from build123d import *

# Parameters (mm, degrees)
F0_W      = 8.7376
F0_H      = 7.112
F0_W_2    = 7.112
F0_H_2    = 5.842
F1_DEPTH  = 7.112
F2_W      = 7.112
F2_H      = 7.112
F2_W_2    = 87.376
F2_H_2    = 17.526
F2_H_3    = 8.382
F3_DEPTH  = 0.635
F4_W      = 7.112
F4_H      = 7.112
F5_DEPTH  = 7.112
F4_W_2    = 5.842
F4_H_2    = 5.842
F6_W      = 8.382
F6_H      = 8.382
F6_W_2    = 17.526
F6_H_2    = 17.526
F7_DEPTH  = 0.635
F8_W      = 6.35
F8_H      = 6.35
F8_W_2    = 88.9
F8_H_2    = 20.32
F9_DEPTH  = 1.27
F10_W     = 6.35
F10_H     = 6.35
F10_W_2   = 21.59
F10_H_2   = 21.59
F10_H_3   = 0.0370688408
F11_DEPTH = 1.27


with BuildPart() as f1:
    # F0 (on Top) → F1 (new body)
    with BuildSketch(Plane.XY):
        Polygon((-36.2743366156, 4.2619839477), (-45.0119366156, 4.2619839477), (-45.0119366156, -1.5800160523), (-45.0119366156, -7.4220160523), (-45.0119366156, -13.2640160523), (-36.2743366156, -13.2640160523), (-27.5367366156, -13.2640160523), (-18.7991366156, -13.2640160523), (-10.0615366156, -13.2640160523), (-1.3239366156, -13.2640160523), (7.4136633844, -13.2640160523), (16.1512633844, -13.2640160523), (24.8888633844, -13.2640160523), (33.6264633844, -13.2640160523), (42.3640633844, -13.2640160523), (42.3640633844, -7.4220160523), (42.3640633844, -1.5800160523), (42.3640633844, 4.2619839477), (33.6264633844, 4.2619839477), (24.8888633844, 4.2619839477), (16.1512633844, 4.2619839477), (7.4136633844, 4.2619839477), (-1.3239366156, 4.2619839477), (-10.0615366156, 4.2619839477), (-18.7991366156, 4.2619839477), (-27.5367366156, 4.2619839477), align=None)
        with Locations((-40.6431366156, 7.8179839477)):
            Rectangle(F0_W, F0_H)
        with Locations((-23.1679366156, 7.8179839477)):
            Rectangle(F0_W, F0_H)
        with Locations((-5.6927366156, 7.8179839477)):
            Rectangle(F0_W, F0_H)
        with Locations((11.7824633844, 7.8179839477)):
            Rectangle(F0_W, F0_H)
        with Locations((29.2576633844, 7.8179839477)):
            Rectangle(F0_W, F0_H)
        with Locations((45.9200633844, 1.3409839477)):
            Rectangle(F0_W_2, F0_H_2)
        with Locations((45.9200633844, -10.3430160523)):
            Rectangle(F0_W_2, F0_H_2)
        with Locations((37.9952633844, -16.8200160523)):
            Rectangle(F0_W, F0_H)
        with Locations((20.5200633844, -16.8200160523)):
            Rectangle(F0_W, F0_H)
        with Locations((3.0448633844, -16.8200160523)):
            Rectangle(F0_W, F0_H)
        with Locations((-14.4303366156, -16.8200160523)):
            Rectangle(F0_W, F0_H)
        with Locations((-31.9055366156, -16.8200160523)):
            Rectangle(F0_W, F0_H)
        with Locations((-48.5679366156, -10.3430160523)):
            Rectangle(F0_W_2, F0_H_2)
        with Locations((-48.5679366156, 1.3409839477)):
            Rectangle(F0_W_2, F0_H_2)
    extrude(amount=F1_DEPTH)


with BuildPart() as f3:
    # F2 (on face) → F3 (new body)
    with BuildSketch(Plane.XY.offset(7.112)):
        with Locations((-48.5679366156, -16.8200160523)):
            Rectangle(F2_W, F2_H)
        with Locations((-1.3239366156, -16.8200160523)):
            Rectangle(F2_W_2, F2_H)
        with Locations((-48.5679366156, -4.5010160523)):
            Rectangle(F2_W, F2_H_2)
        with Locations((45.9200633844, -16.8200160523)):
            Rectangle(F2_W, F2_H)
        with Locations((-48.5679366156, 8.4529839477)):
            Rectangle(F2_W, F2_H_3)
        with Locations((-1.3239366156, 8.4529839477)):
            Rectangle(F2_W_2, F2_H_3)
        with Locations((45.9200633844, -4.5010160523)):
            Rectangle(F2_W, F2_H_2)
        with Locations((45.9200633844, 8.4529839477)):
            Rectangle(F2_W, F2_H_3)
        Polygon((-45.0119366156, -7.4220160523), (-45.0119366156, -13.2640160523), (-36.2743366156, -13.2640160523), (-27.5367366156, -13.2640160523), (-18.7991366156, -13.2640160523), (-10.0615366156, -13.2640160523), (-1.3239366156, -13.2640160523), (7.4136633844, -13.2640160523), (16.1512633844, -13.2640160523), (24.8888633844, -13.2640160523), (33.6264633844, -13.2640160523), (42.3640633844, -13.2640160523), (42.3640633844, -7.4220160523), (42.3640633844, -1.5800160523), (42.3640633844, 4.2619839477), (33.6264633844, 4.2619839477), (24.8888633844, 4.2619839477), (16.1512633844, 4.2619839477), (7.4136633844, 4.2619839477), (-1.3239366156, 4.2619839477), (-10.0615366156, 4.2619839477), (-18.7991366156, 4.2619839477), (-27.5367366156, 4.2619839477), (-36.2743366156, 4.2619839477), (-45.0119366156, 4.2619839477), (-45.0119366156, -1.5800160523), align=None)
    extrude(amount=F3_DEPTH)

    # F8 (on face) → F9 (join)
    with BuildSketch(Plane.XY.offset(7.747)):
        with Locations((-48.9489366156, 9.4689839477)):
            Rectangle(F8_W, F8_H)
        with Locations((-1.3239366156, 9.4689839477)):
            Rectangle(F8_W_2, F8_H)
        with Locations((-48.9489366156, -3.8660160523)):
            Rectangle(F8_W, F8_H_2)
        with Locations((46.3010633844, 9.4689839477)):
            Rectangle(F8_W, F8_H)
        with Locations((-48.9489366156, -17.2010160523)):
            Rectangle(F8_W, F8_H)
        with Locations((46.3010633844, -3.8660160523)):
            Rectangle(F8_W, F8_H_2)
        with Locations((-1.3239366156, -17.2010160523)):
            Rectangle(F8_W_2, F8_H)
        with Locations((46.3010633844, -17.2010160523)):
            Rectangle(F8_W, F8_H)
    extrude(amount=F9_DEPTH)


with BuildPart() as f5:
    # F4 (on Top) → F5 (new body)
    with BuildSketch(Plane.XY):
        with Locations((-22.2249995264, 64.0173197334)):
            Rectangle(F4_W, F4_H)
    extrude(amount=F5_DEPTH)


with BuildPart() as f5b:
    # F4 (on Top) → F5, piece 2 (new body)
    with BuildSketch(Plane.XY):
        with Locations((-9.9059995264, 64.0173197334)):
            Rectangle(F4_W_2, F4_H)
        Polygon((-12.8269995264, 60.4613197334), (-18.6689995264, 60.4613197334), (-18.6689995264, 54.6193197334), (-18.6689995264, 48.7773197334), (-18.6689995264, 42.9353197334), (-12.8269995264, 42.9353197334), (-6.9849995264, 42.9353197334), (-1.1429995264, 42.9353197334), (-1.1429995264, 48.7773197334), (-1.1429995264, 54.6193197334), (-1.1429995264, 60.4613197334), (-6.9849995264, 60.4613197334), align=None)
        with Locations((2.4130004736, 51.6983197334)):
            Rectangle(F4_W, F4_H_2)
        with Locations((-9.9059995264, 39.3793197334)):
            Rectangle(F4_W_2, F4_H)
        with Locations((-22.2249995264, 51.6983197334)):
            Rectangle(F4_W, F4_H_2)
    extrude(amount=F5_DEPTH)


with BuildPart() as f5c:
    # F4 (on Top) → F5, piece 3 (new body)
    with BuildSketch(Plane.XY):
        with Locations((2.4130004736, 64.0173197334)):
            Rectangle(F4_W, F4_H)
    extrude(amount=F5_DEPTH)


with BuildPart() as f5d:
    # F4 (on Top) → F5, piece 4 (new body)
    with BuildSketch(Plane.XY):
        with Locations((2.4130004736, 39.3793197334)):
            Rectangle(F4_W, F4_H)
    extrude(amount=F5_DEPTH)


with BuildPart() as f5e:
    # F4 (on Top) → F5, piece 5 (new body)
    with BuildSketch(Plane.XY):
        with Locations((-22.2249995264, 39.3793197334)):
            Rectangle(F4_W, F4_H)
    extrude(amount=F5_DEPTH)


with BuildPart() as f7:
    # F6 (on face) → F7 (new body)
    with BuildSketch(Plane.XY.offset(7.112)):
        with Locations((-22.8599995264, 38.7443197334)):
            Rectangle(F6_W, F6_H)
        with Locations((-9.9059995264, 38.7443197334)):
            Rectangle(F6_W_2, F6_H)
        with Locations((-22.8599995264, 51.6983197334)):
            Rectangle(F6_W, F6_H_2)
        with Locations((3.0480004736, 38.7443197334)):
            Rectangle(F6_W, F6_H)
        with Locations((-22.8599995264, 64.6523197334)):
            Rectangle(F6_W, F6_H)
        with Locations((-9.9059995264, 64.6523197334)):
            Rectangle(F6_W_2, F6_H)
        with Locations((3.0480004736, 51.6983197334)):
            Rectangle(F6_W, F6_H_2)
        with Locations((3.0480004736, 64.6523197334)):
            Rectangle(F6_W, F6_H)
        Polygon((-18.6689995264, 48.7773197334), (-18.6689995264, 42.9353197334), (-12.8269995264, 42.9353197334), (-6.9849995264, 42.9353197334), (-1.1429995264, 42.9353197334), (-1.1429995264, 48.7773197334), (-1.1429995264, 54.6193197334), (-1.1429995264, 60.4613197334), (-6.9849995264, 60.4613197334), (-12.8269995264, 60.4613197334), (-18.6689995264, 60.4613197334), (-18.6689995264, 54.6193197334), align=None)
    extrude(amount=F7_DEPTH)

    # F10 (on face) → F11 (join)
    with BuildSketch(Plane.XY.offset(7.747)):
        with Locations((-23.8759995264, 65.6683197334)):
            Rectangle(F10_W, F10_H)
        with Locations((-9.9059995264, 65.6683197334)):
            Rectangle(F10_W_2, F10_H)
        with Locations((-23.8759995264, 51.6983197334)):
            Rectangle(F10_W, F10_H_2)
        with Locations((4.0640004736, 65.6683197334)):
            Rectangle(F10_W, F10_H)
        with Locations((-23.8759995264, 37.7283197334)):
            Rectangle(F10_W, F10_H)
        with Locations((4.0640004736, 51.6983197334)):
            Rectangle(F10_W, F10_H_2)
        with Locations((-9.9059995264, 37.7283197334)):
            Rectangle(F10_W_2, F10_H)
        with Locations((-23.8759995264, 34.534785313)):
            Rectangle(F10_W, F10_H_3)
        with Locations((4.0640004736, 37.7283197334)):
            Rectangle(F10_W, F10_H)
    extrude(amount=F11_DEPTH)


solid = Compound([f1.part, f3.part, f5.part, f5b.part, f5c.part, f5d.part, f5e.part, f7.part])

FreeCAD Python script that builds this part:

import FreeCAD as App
import Part
import Sketcher
from FreeCAD import Vector
Q = App.Units.Quantity

doc = App.newDocument("Part")
body = doc.addObject("PartDesign::Body", "Body")

# Sketch on XY plane
sketch1 = doc.addObject("Sketcher::SketchObject", "Sketch")
body.addObject(sketch1)
sketch1.AttachmentSupport = (doc.XY_Plane, [""])
sketch1.MapMode = "FlatFace"
sketch1.addGeometry(Part.LineSegment(Vector(-36, -13, 0), Vector(-36, -20, 0)), False)
sketch1.addGeometry(Part.LineSegment(Vector(-36, -20, 0), Vector(-28, -20, 0)), False)
sketch1.addGeometry(Part.LineSegment(Vector(-28, -20, 0), Vector(-28, -13, 0)), False)
sketch1.addGeometry(Part.LineSegment(Vector(-28, -13, 0), Vector(-19, -13, 0)), False)
sketch1.addGeometry(Part.LineSegment(Vector(-19, -13, 0), Vector(-19, -20, 0)), False)
sketch1.addGeometry(Part.LineSegment(Vector(-19, -20, 0), Vector(-10, -20, 0)), False)
sketch1.addGeometry(Part.LineSegment(Vector(-10, -20, 0), Vector(-10, -13, 0)), False)
sketch1.addGeometry(Part.LineSegment(Vector(-10, -13, 0), Vector(-1, -13, 0)), False)
sketch1.addGeometry(Part.LineSegment(Vector(-1, -13, 0), Vector(-1, -20, 0)), False)
sketch1.addGeometry(Part.LineSegment(Vector(-1, -20, 0), Vector(7, -20, 0)), False)
sketch1.addGeometry(Part.LineSegment(Vector(7, -20, 0), Vector(7, -13, 0)), False)
sketch1.addGeometry(Part.LineSegment(Vector(7, -13, 0), Vector(16, -13, 0)), False)
sketch1.addGeometry(Part.LineSegment(Vector(16, -13, 0), Vector(16, -20, 0)), False)
sketch1.addGeometry(Part.LineSegment(Vector(16, -20, 0), Vector(25, -20, 0)), False)
sketch1.addGeometry(Part.LineSegment(Vector(25, -20, 0), Vector(25, -13, 0)), False)
sketch1.addGeometry(Part.LineSegment(Vector(25, -13, 0), Vector(34, -13, 0)), False)
sketch1.addGeometry(Part.LineSegment(Vector(34, -13, 0), Vector(34, -20, 0)), False)
sketch1.addGeometry(Part.LineSegment(Vector(34, -20, 0), Vector(42, -20, 0)), False)
sketch1.addGeometry(Part.LineSegment(Vector(42, -20, 0), Vector(42, -13, 0)), False)
sketch1.addGeometry(Part.LineSegment(Vector(42, -13, 0), Vector(49, -13, 0)), False)
sketch1.addGeometry(Part.LineSegment(Vector(49, -13, 0), Vector(49, -7, 0)), False)
sketch1.addGeometry(Part.LineSegment(Vector(49, -7, 0), Vector(42, -7, 0)), False)
sketch1.addGeometry(Part.LineSegment(Vector(42, -7, 0), Vector(42, -2, 0)), False)
sketch1.addGeometry(Part.LineSegment(Vector(42, -2, 0), Vector(49, -2, 0)), False)
sketch1.addGeometry(Part.LineSegment(Vector(49, -2, 0), Vector(49, 4, 0)), False)
sketch1.addGeometry(Part.LineSegment(Vector(49, 4, 0), Vector(34, 4, 0)), False)
sketch1.addGeometry(Part.LineSegment(Vector(34, 4, 0), Vector(34, 11, 0)), False)
sketch1.addGeometry(Part.LineSegment(Vector(34, 11, 0), Vector(25, 11, 0)), False)
sketch1.addGeometry(Part.LineSegment(Vector(25, 11, 0), Vector(25, 4, 0)), False)
sketch1.addGeometry(Part.LineSegment(Vector(25, 4, 0), Vector(16, 4, 0)), False)
sketch1.addGeometry(Part.LineSegment(Vector(16, 4, 0), Vector(16, 11, 0)), False)
sketch1.addGeometry(Part.LineSegment(Vector(16, 11, 0), Vector(7, 11, 0)), False)
sketch1.addGeometry(Part.LineSegment(Vector(7, 11, 0), Vector(7, 4, 0)), False)
sketch1.addGeometry(Part.LineSegment(Vector(7, 4, 0), Vector(-1, 4, 0)), False)
sketch1.addGeometry(Part.LineSegment(Vector(-1, 4, 0), Vector(-1, 11, 0)), False)
sketch1.addGeometry(Part.LineSegment(Vector(-1, 11, 0), Vector(-10, 11, 0)), False)
sketch1.addGeometry(Part.LineSegment(Vector(-10, 11, 0), Vector(-10, 4, 0)), False)
sketch1.addGeometry(Part.LineSegment(Vector(-10, 4, 0), Vector(-19, 4, 0)), False)
sketch1.addGeometry(Part.LineSegment(Vector(-19, 4, 0), Vector(-19, 11, 0)), False)
sketch1.addGeometry(Part.LineSegment(Vector(-19, 11, 0), Vector(-28, 11, 0)), False)
sketch1.addGeometry(Part.LineSegment(Vector(-28, 11, 0), Vector(-28, 4, 0)), False)
sketch1.addGeometry(Part.LineSegment(Vector(-28, 4, 0), Vector(-36, 4, 0)), False)
sketch1.addGeometry(Part.LineSegment(Vector(-36, 4, 0), Vector(-36, 11, 0)), False)
sketch1.addGeometry(Part.LineSegment(Vector(-36, 11, 0), Vector(-45, 11, 0)), False)
sketch1.addGeometry(Part.LineSegment(Vector(-45, 11, 0), Vector(-45, 4, 0)), False)
sketch1.addGeometry(Part.LineSegment(Vector(-45, 4, 0), Vector(-52, 4, 0)), False)
sketch1.addGeometry(Part.LineSegment(Vector(-52, 4, 0), Vector(-52, -2, 0)), False)
sketch1.addGeometry(Part.LineSegment(Vector(-52, -2, 0), Vector(-45, -2, 0)), False)
sketch1.addGeometry(Part.LineSegment(Vector(-45, -2, 0), Vector(-45, -7, 0)), False)
sketch1.addGeometry(Part.LineSegment(Vector(-45, -7, 0), Vector(-52, -7, 0)), False)
sketch1.addGeometry(Part.LineSegment(Vector(-52, -7, 0), Vector(-52, -13, 0)), False)
sketch1.addGeometry(Part.LineSegment(Vector(-52, -13, 0), Vector(-36, -13, 0)), False)
sketch1.addConstraint(Sketcher.Constraint("Coincident", 0, 2, 1, 1))
sketch1.addConstraint(Sketcher.Constraint("Coincident", 1, 2, 2, 1))
sketch1.addConstraint(Sketcher.Constraint("Coincident", 2, 2, 3, 1))
sketch1.addConstraint(Sketcher.Constraint("Coincident", 3, 2, 4, 1))
sketch1.addConstraint(Sketcher.Constraint("Coincident", 4, 2, 5, 1))
sketch1.addConstraint(Sketcher.Constraint("Coincident", 5, 2, 6, 1))
sketch1.addConstraint(Sketcher.Constraint("Coincident", 6, 2, 7, 1))
sketch1.addConstraint(Sketcher.Constraint("Coincident", 7, 2, 8, 1))
sketch1.addConstraint(Sketcher.Constraint("Coincident", 8, 2, 9, 1))
sketch1.addConstraint(Sketcher.Constraint("Coincident", 9, 2, 10, 1))
sketch1.addConstraint(Sketcher.Constraint("Coincident", 10, 2, 11, 1))
sketch1.addConstraint(Sketcher.Constraint("Coincident", 11, 2, 12, 1))
sketch1.addConstraint(Sketcher.Constraint("Coincident", 12, 2, 13, 1))
sketch1.addConstraint(Sketcher.Constraint("Coincident", 13, 2, 14, 1))
sketch1.addConstraint(Sketcher.Constraint("Coincident", 14, 2, 15, 1))
sketch1.addConstraint(Sketcher.Constraint("Coincident", 15, 2, 16, 1))
sketch1.addConstraint(Sketcher.Constraint("Coincident", 16, 2, 17, 1))
sketch1.addConstraint(Sketcher.Constraint("Coincident", 17, 2, 18, 1))
sketch1.addConstraint(Sketcher.Constraint("Coincident", 18, 2, 19, 1))
sketch1.addConstraint(Sketcher.Constraint("Coincident", 19, 2, 20, 1))
sketch1.addConstraint(Sketcher.Constraint("Coincident", 20, 2, 21, 1))
sketch1.addConstraint(Sketcher.Constraint("Coincident", 21, 2, 22, 1))
sketch1.addConstraint(Sketcher.Constraint("Coincident", 22, 2, 23, 1))
sketch1.addConstraint(Sketcher.Constraint("Coincident", 23, 2, 24, 1))
sketch1.addConstraint(Sketcher.Constraint("Coincident", 24, 2, 25, 1))
sketch1.addConstraint(Sketcher.Constraint("Coincident", 25, 2, 26, 1))
sketch1.addConstraint(Sketcher.Constraint("Coincident", 26, 2, 27, 1))
sketch1.addConstraint(Sketcher.Constraint("Coincident", 27, 2, 28, 1))
sketch1.addConstraint(Sketcher.Constraint("Coincident", 28, 2, 29, 1))
sketch1.addConstraint(Sketcher.Constraint("Coincident", 29, 2, 30, 1))
sketch1.addConstraint(Sketcher.Constraint("Coincident", 30, 2, 31, 1))
sketch1.addConstraint(Sketcher.Constraint("Coincident", 31, 2, 32, 1))
sketch1.addConstraint(Sketcher.Constraint("Coincident", 32, 2, 33, 1))
sketch1.addConstraint(Sketcher.Constraint("Coincident", 33, 2, 34, 1))
sketch1.addConstraint(Sketcher.Constraint("Coincident", 34, 2, 35, 1))
sketch1.addConstraint(Sketcher.Constraint("Coincident", 35, 2, 36, 1))
sketch1.addConstraint(Sketcher.Constraint("Coincident", 36, 2, 37, 1))
sketch1.addConstraint(Sketcher.Constraint("Coincident", 37, 2, 38, 1))
sketch1.addConstraint(Sketcher.Constraint("Coincident", 38, 2, 39, 1))
sketch1.addConstraint(Sketcher.Constraint("Coincident", 39, 2, 40, 1))
sketch1.addConstraint(Sketcher.Constraint("Coincident", 40, 2, 41, 1))
sketch1.addConstraint(Sketcher.Constraint("Coincident", 41, 2, 42, 1))
sketch1.addConstraint(Sketcher.Constraint("Coincident", 42, 2, 43, 1))
sketch1.addConstraint(Sketcher.Constraint("Coincident", 43, 2, 44, 1))
sketch1.addConstraint(Sketcher.Constraint("Coincident", 44, 2, 45, 1))
sketch1.addConstraint(Sketcher.Constraint("Coincident", 45, 2, 46, 1))
sketch1.addConstraint(Sketcher.Constraint("Coincident", 46, 2, 47, 1))
sketch1.addConstraint(Sketcher.Constraint("Coincident", 47, 2, 48, 1))
sketch1.addConstraint(Sketcher.Constraint("Coincident", 48, 2, 49, 1))
sketch1.addConstraint(Sketcher.Constraint("Coincident", 49, 2, 50, 1))
sketch1.addConstraint(Sketcher.Constraint("Coincident", 50, 2, 51, 1))
sketch1.addConstraint(Sketcher.Constraint("Coincident", 51, 2, 0, 1))
sketch1.addConstraint(Sketcher.Constraint("Vertical", 0))
sketch1.addConstraint(Sketcher.Constraint("Horizontal", 1))
sketch1.addConstraint(Sketcher.Constraint("Vertical", 2))
sketch1.addConstraint(Sketcher.Constraint("Horizontal", 3))
sketch1.addConstraint(Sketcher.Constraint("Vertical", 4))
sketch1.addConstraint(Sketcher.Constraint("Horizontal", 5))
sketch1.addConstraint(Sketcher.Constraint("Vertical", 6))
sketch1.addConstraint(Sketcher.Constraint("Horizontal", 7))
sketch1.addConstraint(Sketcher.Constraint("Vertical", 8))
sketch1.addConstraint(Sketcher.Constraint("Horizontal", 9))
sketch1.addConstraint(Sketcher.Constraint("Vertical", 10))
sketch1.addConstraint(Sketcher.Constraint("Horizontal", 11))
sketch1.addConstraint(Sketcher.Constraint("Vertical", 12))
sketch1.addConstraint(Sketcher.Constraint("Horizontal", 13))
sketch1.addConstraint(Sketcher.Constraint("Vertical", 14))
sketch1.addConstraint(Sketcher.Constraint("Horizontal", 15))
sketch1.addConstraint(Sketcher.Constraint("Vertical", 16))
sketch1.addConstraint(Sketcher.Constraint("Horizontal", 17))
sketch1.addConstraint(Sketcher.Constraint("Vertical", 18))
sketch1.addConstraint(Sketcher.Constraint("Horizontal", 19))
sketch1.addConstraint(Sketcher.Constraint("Vertical", 20))
sketch1.addConstraint(Sketcher.Constraint("Horizontal", 21))
sketch1.addConstraint(Sketcher.Constraint("Vertical", 22))
sketch1.addConstraint(Sketcher.Constraint("Horizontal", 23))
sketch1.addConstraint(Sketcher.Constraint("Vertical", 24))
sketch1.addConstraint(Sketcher.Constraint("Horizontal", 25))
sketch1.addConstraint(Sketcher.Constraint("Vertical", 26))
sketch1.addConstraint(Sketcher.Constraint("Horizontal", 27))
sketch1.addConstraint(Sketcher.Constraint("Vertical", 28))
sketch1.addConstraint(Sketcher.Constraint("Horizontal", 29))
sketch1.addConstraint(Sketcher.Constraint("Vertical", 30))
sketch1.addConstraint(Sketcher.Constraint("Horizontal", 31))
sketch1.addConstraint(Sketcher.Constraint("Vertical", 32))
sketch1.addConstraint(Sketcher.Constraint("Horizontal", 33))
sketch1.addConstraint(Sketcher.Constraint("Vertical", 34))
sketch1.addConstraint(Sketcher.Constraint("Horizontal", 35))
sketch1.addConstraint(Sketcher.Constraint("Vertical", 36))
sketch1.addConstraint(Sketcher.Constraint("Horizontal", 37))
sketch1.addConstraint(Sketcher.Constraint("Vertical", 38))
sketch1.addConstraint(Sketcher.Constraint("Horizontal", 39))
sketch1.addConstraint(Sketcher.Constraint("Vertical", 40))
sketch1.addConstraint(Sketcher.Constraint("Horizontal", 41))
sketch1.addConstraint(Sketcher.Constraint("Vertical", 42))
sketch1.addConstraint(Sketcher.Constraint("Horizontal", 43))
sketch1.addConstraint(Sketcher.Constraint("Vertical", 44))
sketch1.addConstraint(Sketcher.Constraint("Horizontal", 45))
sketch1.addConstraint(Sketcher.Constraint("Vertical", 46))
sketch1.addConstraint(Sketcher.Constraint("Horizontal", 47))
sketch1.addConstraint(Sketcher.Constraint("Vertical", 48))
sketch1.addConstraint(Sketcher.Constraint("Horizontal", 49))
sketch1.addConstraint(Sketcher.Constraint("Vertical", 50))
sketch1.addConstraint(Sketcher.Constraint("Horizontal", 51))
sketch1.addConstraint(Sketcher.Constraint("Horizontal", 1, 2, 4, 2))
sketch1.addConstraint(Sketcher.Constraint("Horizontal", 3, 2, 6, 2))
sketch1.addConstraint(Sketcher.Constraint("Horizontal", 5, 2, 8, 2))
sketch1.addConstraint(Sketcher.Constraint("Horizontal", 7, 2, 10, 2))
sketch1.addConstraint(Sketcher.Constraint("Horizontal", 9, 2, 12, 2))
sketch1.addConstraint(Sketcher.Constraint("Horizontal", 11, 2, 14, 2))
sketch1.addConstraint(Sketcher.Constraint("Horizontal", 13, 2, 16, 2))
sketch1.addConstraint(Sketcher.Constraint("Horizontal", 15, 2, 18, 2))
sketch1.addConstraint(Sketcher.Constraint("Horizontal", 25, 2, 28, 2))
sketch1.addConstraint(Sketcher.Constraint("Horizontal", 27, 2, 30, 2))
sketch1.addConstraint(Sketcher.Constraint("Horizontal", 29, 2, 32, 2))
sketch1.addConstraint(Sketcher.Constraint("Horizontal", 31, 2, 34, 2))
sketch1.addConstraint(Sketcher.Constraint("Horizontal", 33, 2, 36, 2))
sketch1.addConstraint(Sketcher.Constraint("Horizontal", 35, 2, 38, 2))
sketch1.addConstraint(Sketcher.Constraint("Horizontal", 37, 2, 40, 2))
sketch1.addConstraint(Sketcher.Constraint("Horizontal", 39, 2, 42, 2))
sketch1.addConstraint(Sketcher.Constraint("Horizontal", 41, 2, 44, 2))
sketch1.addConstraint(Sketcher.Constraint("Horizontal", 23, 2, 46, 2))
sketch1.addConstraint(Sketcher.Constraint("Horizontal", 21, 2, 48, 2))
sketch1.addConstraint(Sketcher.Constraint("Horizontal", 19, 2, 50, 2))
sketch1.addConstraint(Sketcher.Constraint("Vertical", 18, 2, 21, 2))
sketch1.addConstraint(Sketcher.Constraint("Vertical", 20, 2, 23, 2))
sketch1.addConstraint(Sketcher.Constraint("Vertical", 16, 2, 25, 2))
sketch1.addConstraint(Sketcher.Constraint("Vertical", 14, 2, 27, 2))
sketch1.addConstraint(Sketcher.Constraint("Vertical", 12, 2, 29, 2))
sketch1.addConstraint(Sketcher.Constraint("Vertical", 10, 2, 31, 2))
sketch1.addConstraint(Sketcher.Constraint("Vertical", 8, 2, 33, 2))
sketch1.addConstraint(Sketcher.Constraint("Vertical", 6, 2, 35, 2))
sketch1.addConstraint(Sketcher.Constraint("Vertical", 4, 2, 37, 2))
sketch1.addConstraint(Sketcher.Constraint("Vertical", 2, 2, 39, 2))
sketch1.addConstraint(Sketcher.Constraint("Vertical", 0, 2, 41, 2))
sketch1.addConstraint(Sketcher.Constraint("Vertical", 44, 2, 47, 2))
sketch1.addConstraint(Sketcher.Constraint("Vertical", 46, 2, 49, 2))
sketch1.addConstraint(Sketcher.Constraint("Equal", 1, 3))
sketch1.addConstraint(Sketcher.Constraint("Equal", 3, 5))
sketch1.addConstraint(Sketcher.Constraint("Equal", 5, 7))
sketch1.addConstraint(Sketcher.Constraint("Equal", 7, 9))
sketch1.addConstraint(Sketcher.Constraint("Equal", 9, 11))
sketch1.addConstraint(Sketcher.Constraint("Equal", 11, 13))
sketch1.addConstraint(Sketcher.Constraint("Equal", 13, 15))
sketch1.addConstraint(Sketcher.Constraint("Equal", 15, 17))
sketch1.addConstraint(Sketcher.Constraint("Equal", 41, 43))
sketch1.addConstraint(Sketcher.Constraint("Equal", 23, 45))
sketch1.addConstraint(Sketcher.Constraint("Equal", 49, 0))
sketch1.addConstraint(Sketcher.Constraint("Equal", 20, 22))
sketch1.addConstraint(Sketcher.Constraint("Equal", 22, 24))
sketch1.addConstraint(Sketcher.Constraint("Equal", 18, 26))
sketch1.addConstraint(Sketcher.Constraint("DistanceX", 19, 1, 19, 2, Q("0.28 in")))
sketch1.addConstraint(Sketcher.Constraint("DistanceY", 20, 1, 20, 2, Q("0.23 in")))
sketch1.addConstraint(Sketcher.Constraint("DistanceX", 1, 1, 1, 2, Q("0.344 in")))
sketch1.addConstraint(Sketcher.Constraint("DistanceX", 0, 2, -1, 1, Q("36.274337 mm")))
sketch1.addConstraint(Sketcher.Constraint("DistanceY", 0, 2, -1, 1, Q("20.376016 mm")))
pad1 = doc.addObject("PartDesign::Pad", "Pad")
body.addObject(pad1)
pad1.Profile = sketch1
pad1.Length = Q("0.28 in")
body2 = doc.addObject("PartDesign::Body", "Body001")

# Sketch on XY plane
sketch2 = doc.addObject("Sketcher::SketchObject", "Sketch001")
body2.addObject(sketch2)
sketch2.AttachmentSupport = (doc.getObject("XY_Plane001"), [""])
sketch2.MapMode = "FlatFace"
sketch2.AttachmentOffset = App.Placement(Vector(0, 0, 0.28 * 25.4), App.Rotation())
sketch2.addGeometry(Part.LineSegment(Vector(49, -20, 0), Vector(49, 13, 0)), False)
sketch2.addGeometry(Part.LineSegment(Vector(49, 13, 0), Vector(-52, 13, 0)), False)
sketch2.addGeometry(Part.LineSegment(Vector(-52, 13, 0), Vector(-52, -20, 0)), False)
sketch2.addGeometry(Part.LineSegment(Vector(-52, -20, 0), Vector(49, -20, 0)), False)
sketch2.addConstraint(Sketcher.Constraint("Coincident", 0, 2, 1, 1))
sketch2.addConstraint(Sketcher.Constraint("Coincident", 1, 2, 2, 1))
sketch2.addConstraint(Sketcher.Constraint("Coincident", 2, 2, 3, 1))
sketch2.addConstraint(Sketcher.Constraint("Coincident", 3, 2, 0, 1))
sketch2.addConstraint(Sketcher.Constraint("Vertical", 0))
sketch2.addConstraint(Sketcher.Constraint("Horizontal", 1))
sketch2.addConstraint(Sketcher.Constraint("Vertical", 2))
sketch2.addConstraint(Sketcher.Constraint("Horizontal", 3))
sketch2.addConstraint(Sketcher.Constraint("DistanceX", 1, 2, 1, 1, Q("4 in")))
sketch2.addConstraint(Sketcher.Constraint("DistanceY", 0, 1, 0, 2, Q("1.3 in")))
sketch2.addConstraint(Sketcher.Constraint("DistanceX", -1, 1, 0, 2, Q("49.476063 mm")))
sketch2.addConstraint(Sketcher.Constraint("DistanceY", -1, 1, 0, 2, Q("12.643984 mm")))
pad2 = doc.addObject("PartDesign::Pad", "Pad001")
body2.addObject(pad2)
pad2.Profile = sketch2
pad2.Length = Q("0.025 in")

# Sketch on XY plane
sketch3 = doc.addObject("Sketcher::SketchObject", "Sketch002")
body2.addObject(sketch3)
sketch3.AttachmentSupport = (doc.getObject("XY_Plane001"), [""])
sketch3.MapMode = "FlatFace"
sketch3.AttachmentOffset = App.Placement(Vector(0, 0, 0.305 * 25.4), App.Rotation())
sketch3.addGeometry(Part.LineSegment(Vector(-52, -20, 0), Vector(49, -20, 0)), False)
sketch3.addGeometry(Part.LineSegment(Vector(49, -20, 0), Vector(49, 13, 0)), False)
sketch3.addGeometry(Part.LineSegment(Vector(49, 13, 0), Vector(-52, 13, 0)), False)
sketch3.addGeometry(Part.LineSegment(Vector(-52, 13, 0), Vector(-52, -20, 0)), False)
sketch3.addGeometry(Part.LineSegment(Vector(43, -14, 0), Vector(-46, -14, 0)), False)
sketch3.addGeometry(Part.LineSegment(Vector(-46, -14, 0), Vector(-46, 6, 0)), False)
sketch3.addGeometry(Part.LineSegment(Vector(-46, 6, 0), Vector(43, 6, 0)), False)
sketch3.addGeometry(Part.LineSegment(Vector(43, 6, 0), Vector(43, -14, 0)), False)
sketch3.addConstraint(Sketcher.Constraint("Coincident", 0, 2, 1, 1))
sketch3.addConstraint(Sketcher.Constraint("Coincident", 1, 2, 2, 1))
sketch3.addConstraint(Sketcher.Constraint("Coincident", 2, 2, 3, 1))
sketch3.addConstraint(Sketcher.Constraint("Coincident", 3, 2, 0, 1))
sketch3.addConstraint(Sketcher.Constraint("Coincident", 4, 2, 5, 1))
sketch3.addConstraint(Sketcher.Constraint("Coincident", 5, 2, 6, 1))
sketch3.addConstraint(Sketcher.Constraint("Coincident", 6, 2, 7, 1))
sketch3.addConstraint(Sketcher.Constraint("Coincident", 7, 2, 4, 1))
sketch3.addConstraint(Sketcher.Constraint("Horizontal", 0))
sketch3.addConstraint(Sketcher.Constraint("Vertical", 1))
sketch3.addConstraint(Sketcher.Constraint("Horizontal", 2))
sketch3.addConstraint(Sketcher.Constraint("Vertical", 3))
sketch3.addConstraint(Sketcher.Constraint("Horizontal", 4))
sketch3.addConstraint(Sketcher.Constraint("Vertical", 5))
sketch3.addConstraint(Sketcher.Constraint("Horizontal", 6))
sketch3.addConstraint(Sketcher.Constraint("Vertical", 7))
sketch3.addConstraint(Sketcher.Constraint("DistanceX", 0, 1, 0, 2, Q("4 in")))
sketch3.addConstraint(Sketcher.Constraint("DistanceX", 4, 2, 4, 1, Q("3.5 in")))
sketch3.addConstraint(Sketcher.Constraint("DistanceY", 1, 1, 1, 2, Q("1.3 in")))
sketch3.addConstraint(Sketcher.Constraint("DistanceY", 5, 1, 5, 2, Q("0.8 in")))
sketch3.addConstraint(Sketcher.Constraint("DistanceX", 3, 2, 4, 2, Q("0.25 in")))
sketch3.addConstraint(Sketcher.Constraint("DistanceY", 3, 2, 4, 2, Q("0.25 in")))
sketch3.addConstraint(Sketcher.Constraint("DistanceX", -1, 1, 0, 2, Q("49.476063 mm")))
sketch3.addConstraint(Sketcher.Constraint("DistanceY", 0, 2, -1, 1, Q("20.376016 mm")))
pad3 = doc.addObject("PartDesign::Pad", "Pad002")
body2.addObject(pad3)
pad3.Profile = sketch3
pad3.Length = Q("0.05 in")
body3 = doc.addObject("PartDesign::Body", "Body002")

# Sketch on XY plane
sketch4 = doc.addObject("Sketcher::SketchObject", "Sketch003")
body3.addObject(sketch4)
sketch4.AttachmentSupport = (doc.getObject("XY_Plane002"), [""])
sketch4.MapMode = "FlatFace"
sketch4.addGeometry(Part.LineSegment(Vector(-26, 68, 0), Vector(-26, 60, 0)), False)
sketch4.addGeometry(Part.LineSegment(Vector(-26, 60, 0), Vector(-19, 60, 0)), False)
sketch4.addGeometry(Part.LineSegment(Vector(-19, 60, 0), Vector(-19, 68, 0)), False)
sketch4.addGeometry(Part.LineSegment(Vector(-19, 68, 0), Vector(-26, 68, 0)), False)
sketch4.addConstraint(Sketcher.Constraint("Coincident", 0, 2, 1, 1))
sketch4.addConstraint(Sketcher.Constraint("Coincident", 1, 2, 2, 1))
sketch4.addConstraint(Sketcher.Constraint("Coincident", 2, 2, 3, 1))
sketch4.addConstraint(Sketcher.Constraint("Coincident", 3, 2, 0, 1))
sketch4.addConstraint(Sketcher.Constraint("Vertical", 0))
sketch4.addConstraint(Sketcher.Constraint("Horizontal", 1))
sketch4.addConstraint(Sketcher.Constraint("Vertical", 2))
sketch4.addConstraint(Sketcher.Constraint("Horizontal", 3))
sketch4.addConstraint(Sketcher.Constraint("Equal", 3, 0))
sketch4.addConstraint(Sketcher.Constraint("DistanceX", 1, 1, 1, 2, Q("0.28 in")))
sketch4.addConstraint(Sketcher.Constraint("DistanceX", 0, 2, -1, 1, Q("1.015 in")))
sketch4.addConstraint(Sketcher.Constraint("DistanceY", -1, 1, 0, 2, Q("60.46132 mm")))
pad4 = doc.addObject("PartDesign::Pad", "Pad003")
body3.addObject(pad4)
pad4.Profile = sketch4
pad4.Length = Q("0.28 in")
body4 = doc.addObject("PartDesign::Body", "Body003")

# Sketch on XY plane
sketch5 = doc.addObject("Sketcher::SketchObject", "Sketch004")
body4.addObject(sketch5)
sketch5.AttachmentSupport = (doc.getObject("XY_Plane003"), [""])
sketch5.MapMode = "FlatFace"
sketch5.addGeometry(Part.LineSegment(Vector(-13, 68, 0), Vector(-13, 60, 0)), False)
sketch5.addGeometry(Part.LineSegment(Vector(-13, 60, 0), Vector(-19, 60, 0)), False)
sketch5.addGeometry(Part.LineSegment(Vector(-19, 60, 0), Vector(-19, 55, 0)), False)
sketch5.addGeometry(Part.LineSegment(Vector(-19, 55, 0), Vector(-26, 55, 0)), False)
sketch5.addGeometry(Part.LineSegment(Vector(-26, 55, 0), Vector(-26, 49, 0)), False)
sketch5.addGeometry(Part.LineSegment(Vector(-26, 49, 0), Vector(-19, 49, 0)), False)
sketch5.addGeometry(Part.LineSegment(Vector(-19, 49, 0), Vector(-19, 43, 0)), False)
sketch5.addGeometry(Part.LineSegment(Vector(-19, 43, 0), Vector(-13, 43, 0)), False)
sketch5.addGeometry(Part.LineSegment(Vector(-13, 43, 0), Vector(-13, 36, 0)), False)
sketch5.addGeometry(Part.LineSegment(Vector(-13, 36, 0), Vector(-7, 36, 0)), False)
sketch5.addGeometry(Part.LineSegment(Vector(-7, 36, 0), Vector(-7, 43, 0)), False)
sketch5.addGeometry(Part.LineSegment(Vector(-7, 43, 0), Vector(-1, 43, 0)), False)
sketch5.addGeometry(Part.LineSegment(Vector(-1, 43, 0), Vector(-1, 49, 0)), False)
sketch5.addGeometry(Part.LineSegment(Vector(-1, 49, 0), Vector(6, 49, 0)), False)
sketch5.addGeometry(Part.LineSegment(Vector(6, 49, 0), Vector(6, 55, 0)), False)
sketch5.addGeometry(Part.LineSegment(Vector(6, 55, 0), Vector(-1, 55, 0)), False)
sketch5.addGeometry(Part.LineSegment(Vector(-1, 55, 0), Vector(-1, 60, 0)), False)
sketch5.addGeometry(Part.LineSegment(Vector(-1, 60, 0), Vector(-7, 60, 0)), False)
sketch5.addGeometry(Part.LineSegment(Vector(-7, 60, 0), Vector(-7, 68, 0)), False)
sketch5.addGeometry(Part.LineSegment(Vector(-7, 68, 0), Vector(-13, 68, 0)), False)
sketch5.addConstraint(Sketcher.Constraint("Coincident", 0, 2, 1, 1))
sketch5.addConstraint(Sketcher.Constraint("Coincident", 1, 2, 2, 1))
sketch5.addConstraint(Sketcher.Constraint("Coincident", 2, 2, 3, 1))
sketch5.addConstraint(Sketcher.Constraint("Coincident", 3, 2, 4, 1))
sketch5.addConstraint(Sketcher.Constraint("Coincident", 4, 2, 5, 1))
sketch5.addConstraint(Sketcher.Constraint("Coincident", 5, 2, 6, 1))
sketch5.addConstraint(Sketcher.Constraint("Coincident", 6, 2, 7, 1))
sketch5.addConstraint(Sketcher.Constraint("Coincident", 7, 2, 8, 1))
sketch5.addConstraint(Sketcher.Constraint("Coincident", 8, 2, 9, 1))
sketch5.addConstraint(Sketcher.Constraint("Coincident", 9, 2, 10, 1))
sketch5.addConstraint(Sketcher.Constraint("Coincident", 10, 2, 11, 1))
sketch5.addConstraint(Sketcher.Constraint("Coincident", 11, 2, 12, 1))
sketch5.addConstraint(Sketcher.Constraint("Coincident", 12, 2, 13, 1))
sketch5.addConstraint(Sketcher.Constraint("Coincident", 13, 2, 14, 1))
sketch5.addConstraint(Sketcher.Constraint("Coincident", 14, 2, 15, 1))
sketch5.addConstraint(Sketcher.Constraint("Coincident", 15, 2, 16, 1))
sketch5.addConstraint(Sketcher.Constraint("Coincident", 16, 2, 17, 1))
sketch5.addConstraint(Sketcher.Constraint("Coincident", 17, 2, 18, 1))
sketch5.addConstraint(Sketcher.Constraint("Coincident", 18, 2, 19, 1))
sketch5.addConstraint(Sketcher.Constraint("Coincident", 19, 2, 0, 1))
sketch5.addConstraint(Sketcher.Constraint("Vertical", 0))
sketch5.addConstraint(Sketcher.Constraint("Horizontal", 1))
sketch5.addConstraint(Sketcher.Constraint("Vertical", 2))
sketch5.addConstraint(Sketcher.Constraint("Horizontal", 3))
sketch5.addConstraint(Sketcher.Constraint("Vertical", 4))
sketch5.addConstraint(Sketcher.Constraint("Horizontal", 5))
sketch5.addConstraint(Sketcher.Constraint("Vertical", 6))
sketch5.addConstraint(Sketcher.Constraint("Horizontal", 7))
sketch5.addConstraint(Sketcher.Constraint("Vertical", 8))
sketch5.addConstraint(Sketcher.Constraint("Horizontal", 9))
sketch5.addConstraint(Sketcher.Constraint("Vertical", 10))
sketch5.addConstraint(Sketcher.Constraint("Horizontal", 11))
sketch5.addConstraint(Sketcher.Constraint("Vertical", 12))
sketch5.addConstraint(Sketcher.Constraint("Horizontal", 13))
sketch5.addConstraint(Sketcher.Constraint("Vertical", 14))
sketch5.addConstraint(Sketcher.Constraint("Horizontal", 15))
sketch5.addConstraint(Sketcher.Constraint("Vertical", 16))
sketch5.addConstraint(Sketcher.Constraint("Horizontal", 17))
sketch5.addConstraint(Sketcher.Constraint("Vertical", 18))
sketch5.addConstraint(Sketcher.Constraint("Horizontal", 19))
sketch5.addConstraint(Sketcher.Constraint("Horizontal", 7, 2, 10, 2))
sketch5.addConstraint(Sketcher.Constraint("Horizontal", 5, 2, 12, 2))
sketch5.addConstraint(Sketcher.Constraint("Horizontal", 3, 2, 14, 2))
sketch5.addConstraint(Sketcher.Constraint("Horizontal", 1, 2, 16, 2))
sketch5.addConstraint(Sketcher.Constraint("Vertical", 2, 2, 5, 2))
sketch5.addConstraint(Sketcher.Constraint("Vertical", 0, 2, 7, 2))
sketch5.addConstraint(Sketcher.Constraint("Vertical", 12, 2, 15, 2))
sketch5.addConstraint(Sketcher.Constraint("Vertical", 10, 2, 17, 2))
sketch5.addConstraint(Sketcher.Constraint("Equal", 7, 9))
sketch5.addConstraint(Sketcher.Constraint("Equal", 9, 11))
sketch5.addConstraint(Sketcher.Constraint("Equal", 5, 13))
sketch5.addConstraint(Sketcher.Constraint("Equal", 15, 0))
sketch5.addConstraint(Sketcher.Constraint("Equal", 19, 2))
sketch5.addConstraint(Sketcher.Constraint("Equal", 2, 4))
sketch5.addConstraint(Sketcher.Constraint("Equal", 4, 6))
sketch5.addConstraint(Sketcher.Constraint("Equal", 0, 8))
sketch5.addConstraint(Sketcher.Constraint("DistanceX", 1, 2, 1, 1, Q("0.23 in")))
sketch5.addConstraint(Sketcher.Constraint("DistanceX", 3, 2, 3, 1, Q("0.28 in")))
sketch5.addConstraint(Sketcher.Constraint("DistanceX", 0, 2, -1, 1, Q("0.505 in")))
sketch5.addConstraint(Sketcher.Constraint("DistanceY", -1, 1, 0, 2, Q("60.46132 mm")))
pad5 = doc.addObject("PartDesign::Pad", "Pad004")
body4.addObject(pad5)
pad5.Profile = sketch5
pad5.Length = Q("0.28 in")
body5 = doc.addObject("PartDesign::Body", "Body004")

# Sketch on XY plane
sketch6 = doc.addObject("Sketcher::SketchObject", "Sketch005")
body5.addObject(sketch6)
sketch6.AttachmentSupport = (doc.getObject("XY_Plane004"), [""])
sketch6.MapMode = "FlatFace"
sketch6.addGeometry(Part.LineSegment(Vector(-1, 68, 0), Vector(-1, 60, 0)), False)
sketch6.addGeometry(Part.LineSegment(Vector(-1, 60, 0), Vector(6, 60, 0)), False)
sketch6.addGeometry(Part.LineSegment(Vector(6, 60, 0), Vector(6, 68, 0)), False)
sketch6.addGeometry(Part.LineSegment(Vector(6, 68, 0), Vector(-1, 68, 0)), False)
sketch6.addConstraint(Sketcher.Constraint("Coincident", 0, 2, 1, 1))
sketch6.addConstraint(Sketcher.Constraint("Coincident", 1, 2, 2, 1))
sketch6.addConstraint(Sketcher.Constraint("Coincident", 2, 2, 3, 1))
sketch6.addConstraint(Sketcher.Constraint("Coincident", 3, 2, 0, 1))
sketch6.addConstraint(Sketcher.Constraint("Vertical", 0))
sketch6.addConstraint(Sketcher.Constraint("Horizontal", 1))
sketch6.addConstraint(Sketcher.Constraint("Vertical", 2))
sketch6.addConstraint(Sketcher.Constraint("Horizontal", 3))
sketch6.addConstraint(Sketcher.Constraint("Equal", 3, 0))
sketch6.addConstraint(Sketcher.Constraint("DistanceX", 1, 1, 1, 2, Q("0.28 in")))
sketch6.addConstraint(Sketcher.Constraint("DistanceX", 0, 2, -1, 1, Q("0.045 in")))
sketch6.addConstraint(Sketcher.Constraint("DistanceY", -1, 1, 0, 2, Q("60.46132 mm")))
pad6 = doc.addObject("PartDesign::Pad", "Pad005")
body5.addObject(pad6)
pad6.Profile = sketch6
pad6.Length = Q("0.28 in")
body6 = doc.addObject("PartDesign::Body", "Body005")

# Sketch on XY plane
sketch7 = doc.addObject("Sketcher::SketchObject", "Sketch006")
body6.addObject(sketch7)
sketch7.AttachmentSupport = (doc.getObject("XY_Plane005"), [""])
sketch7.MapMode = "FlatFace"
sketch7.addGeometry(Part.LineSegment(Vector(-1, 43, 0), Vector(-1, 36, 0)), False)
sketch7.addGeometry(Part.LineSegment(Vector(-1, 36, 0), Vector(6, 36, 0)), False)
sketch7.addGeometry(Part.LineSegment(Vector(6, 36, 0), Vector(6, 43, 0)), False)
sketch7.addGeometry(Part.LineSegment(Vector(6, 43, 0), Vector(-1, 43, 0)), False)
sketch7.addConstraint(Sketcher.Constraint("Coincident", 0, 2, 1, 1))
sketch7.addConstraint(Sketcher.Constraint("Coincident", 1, 2, 2, 1))
sketch7.addConstraint(Sketcher.Constraint("Coincident", 2, 2, 3, 1))
sketch7.addConstraint(Sketcher.Constraint("Coincident", 3, 2, 0, 1))
sketch7.addConstraint(Sketcher.Constraint("Vertical", 0))
sketch7.addConstraint(Sketcher.Constraint("Horizontal", 1))
sketch7.addConstraint(Sketcher.Constraint("Vertical", 2))
sketch7.addConstraint(Sketcher.Constraint("Horizontal", 3))
sketch7.addConstraint(Sketcher.Constraint("Equal", 3, 0))
sketch7.addConstraint(Sketcher.Constraint("DistanceX", 1, 1, 1, 2, Q("0.28 in")))
sketch7.addConstraint(Sketcher.Constraint("DistanceX", 0, 2, -1, 1, Q("0.045 in")))
sketch7.addConstraint(Sketcher.Constraint("DistanceY", -1, 1, 0, 2, Q("35.82332 mm")))
pad7 = doc.addObject("PartDesign::Pad", "Pad006")
body6.addObject(pad7)
pad7.Profile = sketch7
pad7.Length = Q("0.28 in")
body7 = doc.addObject("PartDesign::Body", "Body006")

# Sketch on XY plane
sketch8 = doc.addObject("Sketcher::SketchObject", "Sketch007")
body7.addObject(sketch8)
sketch8.AttachmentSupport = (doc.getObject("XY_Plane006"), [""])
sketch8.MapMode = "FlatFace"
sketch8.addGeometry(Part.LineSegment(Vector(-26, 43, 0), Vector(-26, 36, 0)), False)
sketch8.addGeometry(Part.LineSegment(Vector(-26, 36, 0), Vector(-19, 36, 0)), False)
sketch8.addGeometry(Part.LineSegment(Vector(-19, 36, 0), Vector(-19, 43, 0)), False)
sketch8.addGeometry(Part.LineSegment(Vector(-19, 43, 0), Vector(-26, 43, 0)), False)
sketch8.addConstraint(Sketcher.Constraint("Coincident", 0, 2, 1, 1))
sketch8.addConstraint(Sketcher.Constraint("Coincident", 1, 2, 2, 1))
sketch8.addConstraint(Sketcher.Constraint("Coincident", 2, 2, 3, 1))
sketch8.addConstraint(Sketcher.Constraint("Coincident", 3, 2, 0, 1))
sketch8.addConstraint(Sketcher.Constraint("Vertical", 0))
sketch8.addConstraint(Sketcher.Constraint("Horizontal", 1))
sketch8.addConstraint(Sketcher.Constraint("Vertical", 2))
sketch8.addConstraint(Sketcher.Constraint("Horizontal", 3))
sketch8.addConstraint(Sketcher.Constraint("Equal", 3, 0))
sketch8.addConstraint(Sketcher.Constraint("DistanceX", 1, 1, 1, 2, Q("0.28 in")))
sketch8.addConstraint(Sketcher.Constraint("DistanceX", 0, 2, -1, 1, Q("1.015 in")))
sketch8.addConstraint(Sketcher.Constraint("DistanceY", -1, 1, 0, 2, Q("35.82332 mm")))
pad8 = doc.addObject("PartDesign::Pad", "Pad007")
body7.addObject(pad8)
pad8.Profile = sketch8
pad8.Length = Q("0.28 in")
body8 = doc.addObject("PartDesign::Body", "Body007")

# Sketch on XY plane
sketch9 = doc.addObject("Sketcher::SketchObject", "Sketch008")
body8.addObject(sketch9)
sketch9.AttachmentSupport = (doc.getObject("XY_Plane007"), [""])
sketch9.MapMode = "FlatFace"
sketch9.AttachmentOffset = App.Placement(Vector(0, 0, 0.28 * 25.4), App.Rotation())
sketch9.addGeometry(Part.LineSegment(Vector(7, 35, 0), Vector(7, 69, 0)), False)
sketch9.addGeometry(Part.LineSegment(Vector(7, 69, 0), Vector(-27, 69, 0)), False)
sketch9.addGeometry(Part.LineSegment(Vector(-27, 69, 0), Vector(-27, 35, 0)), False)
sketch9.addGeometry(Part.LineSegment(Vector(-27, 35, 0), Vector(7, 35, 0)), False)
sketch9.addConstraint(Sketcher.Constraint("Coincident", 0, 2, 1, 1))
sketch9.addConstraint(Sketcher.Constraint("Coincident", 1, 2, 2, 1))
sketch9.addConstraint(Sketcher.Constraint("Coincident", 2, 2, 3, 1))
sketch9.addConstraint(Sketcher.Constraint("Coincident", 3, 2, 0, 1))
sketch9.addConstraint(Sketcher.Constraint("Vertical", 0))
sketch9.addConstraint(Sketcher.Constraint("Horizontal", 1))
sketch9.addConstraint(Sketcher.Constraint("Vertical", 2))
sketch9.addConstraint(Sketcher.Constraint("Horizontal", 3))
sketch9.addConstraint(Sketcher.Constraint("Equal", 3, 0))
sketch9.addConstraint(Sketcher.Constraint("DistanceX", 1, 2, 1, 1, Q("1.35 in")))
sketch9.addConstraint(Sketcher.Constraint("DistanceX", -1, 1, 0, 2, Q("0.285 in")))
sketch9.addConstraint(Sketcher.Constraint("DistanceY", -1, 1, 0, 2, Q("68.84332 mm")))
pad9 = doc.addObject("PartDesign::Pad", "Pad008")
body8.addObject(pad9)
pad9.Profile = sketch9
pad9.Length = Q("0.025 in")

# Sketch on XY plane
sketch10 = doc.addObject("Sketcher::SketchObject", "Sketch009")
body8.addObject(sketch10)
sketch10.AttachmentSupport = (doc.getObject("XY_Plane007"), [""])
sketch10.MapMode = "FlatFace"
sketch10.AttachmentOffset = App.Placement(Vector(0, 0, 0.305 * 25.4), App.Rotation())
sketch10.addGeometry(Part.LineSegment(Vector(-20.701, 34.553, 0), Vector(7.239, 34.553, 0)), False)
sketch10.addGeometry(Part.LineSegment(Vector(7.239, 34.553, 0), Vector(7.239, 68.843, 0)), False)
sketch10.addGeometry(Part.LineSegment(Vector(7.239, 68.843, 0), Vector(-27.051, 68.843, 0)), False)
sketch10.addGeometry(Part.LineSegment(Vector(-27.051, 68.843, 0), Vector(-27.051, 34.516, 0)), False)
sketch10.addGeometry(Part.LineSegment(Vector(-27.051, 34.516, 0), Vector(-20.701, 34.516, 0)), False)
sketch10.addGeometry(Part.LineSegment(Vector(-20.701, 34.516, 0), Vector(-20.701, 34.553, 0)), False)
sketch10.addGeometry(Part.LineSegment(Vector(0.889, 40.903, 0), Vector(-20.701, 40.903, 0)), False)
sketch10.addGeometry(Part.LineSegment(Vector(-20.701, 40.903, 0), Vector(-20.701, 62.493, 0)), False)
sketch10.addGeometry(Part.LineSegment(Vector(-20.701, 62.493, 0), Vector(0.889, 62.493, 0)), False)
sketch10.addGeometry(Part.LineSegment(Vector(0.889, 62.493, 0), Vector(0.889, 40.903, 0)), False)
sketch10.addConstraint(Sketcher.Constraint("Coincident", 0, 2, 1, 1))
sketch10.addConstraint(Sketcher.Constraint("Coincident", 1, 2, 2, 1))
sketch10.addConstraint(Sketcher.Constraint("Coincident", 2, 2, 3, 1))
sketch10.addConstraint(Sketcher.Constraint("Coincident", 3, 2, 4, 1))
sketch10.addConstraint(Sketcher.Constraint("Coincident", 4, 2, 5, 1))
sketch10.addConstraint(Sketcher.Constraint("Coincident", 5, 2, 0, 1))
sketch10.addConstraint(Sketcher.Constraint("Coincident", 6, 2, 7, 1))
sketch10.addConstraint(Sketcher.Constraint("Coincident", 7, 2, 8, 1))
sketch10.addConstraint(Sketcher.Constraint("Coincident", 8, 2, 9, 1))
sketch10.addConstraint(Sketcher.Constraint("Coincident", 9, 2, 6, 1))
sketch10.addConstraint(Sketcher.Constraint("Horizontal", 0))
sketch10.addConstraint(Sketcher.Constraint("Vertical", 1))
sketch10.addConstraint(Sketcher.Constraint("Horizontal", 2))
sketch10.addConstraint(Sketcher.Constraint("Vertical", 3))
sketch10.addConstraint(Sketcher.Constraint("Horizontal", 4))
sketch10.addConstraint(Sketcher.Constraint("Vertical", 5))
sketch10.addConstraint(Sketcher.Constraint("Horizontal", 6))
sketch10.addConstraint(Sketcher.Constraint("Vertical", 7))
sketch10.addConstraint(Sketcher.Constraint("Horizontal", 8))
sketch10.addConstraint(Sketcher.Constraint("Vertical", 9))
sketch10.addConstraint(Sketcher.Constraint("Vertical", 5, 2, 6, 2))
sketch10.addConstraint(Sketcher.Constraint("Equal", 2, 1))
sketch10.addConstraint(Sketcher.Constraint("Equal", 8, 7))
sketch10.addConstraint(Sketcher.Constraint("DistanceX", 0, 1, 0, 2, Q("1.1 in")))
sketch10.addConstraint(Sketcher.Constraint("DistanceX", 2, 2, 2, 1, Q("1.35 in")))
sketch10.addConstraint(Sketcher.Constraint("DistanceX", 6, 2, 6, 1, Q("0.85 in")))
sketch10.addConstraint(Sketcher.Constraint("DistanceY", 6, 2, 2, 2, Q("1.1 in")))
sketch10.addConstraint(Sketcher.Constraint("DistanceX", -1, 1, 0, 2, Q("0.285 in")))
sketch10.addConstraint(Sketcher.Constraint("DistanceY", 3, 2, 3, 1, Q("34.327069 mm")))
sketch10.addConstraint(Sketcher.Constraint("DistanceY", -1, 1, 0, 2, Q("34.55332 mm")))
pad10 = doc.addObject("PartDesign::Pad", "Pad009")
body8.addObject(pad10)
pad10.Profile = sketch10
pad10.Length = Q("0.05 in")

doc.recompute()
